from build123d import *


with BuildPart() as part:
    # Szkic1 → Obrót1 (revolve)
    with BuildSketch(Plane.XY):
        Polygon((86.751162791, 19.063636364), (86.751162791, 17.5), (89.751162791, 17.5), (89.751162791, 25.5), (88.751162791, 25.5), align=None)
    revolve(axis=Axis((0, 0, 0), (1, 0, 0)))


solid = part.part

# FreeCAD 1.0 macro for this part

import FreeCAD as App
import Part
import Sketcher

V = App.Vector
Q = App.Units.Quantity

doc = App.newDocument("Part")
params = doc.addObject("Spreadsheet::Sheet", "Params")
for row, (alias, value) in enumerate([
    ("sketch1_width", "3 mm"),
    ("sketch1_width2", "1 mm"),
    ("sketch1_height", "8 mm"),
    ("revolution_angle", "360 deg"),
], start=1):
    params.set(f"A{row}", alias)
    params.set(f"B{row}", "=" + value)
    params.setAlias(f"B{row}", alias)

body = doc.addObject("PartDesign::Body", "Body")

# Sketch on XY plane
sketch1 = body.newObject("Sketcher::SketchObject", "Sketch")
sketch1.AttachmentSupport = (doc.getObject("XY_Plane"), [""])
sketch1.MapMode = "FlatFace"
sketch1.addGeometry([
    Part.LineSegment(V(86.8, 19.1, 0), V(86.8, 17.5, 0)),  # 0
    Part.LineSegment(V(86.8, 17.5, 0), V(89.8, 17.5, 0)),  # 1
    Part.LineSegment(V(89.8, 17.5, 0), V(89.8, 25.5, 0)),  # 2
    Part.LineSegment(V(89.8, 25.5, 0), V(88.8, 25.5, 0)),  # 3
    Part.LineSegment(V(88.8, 25.5, 0), V(86.8, 19.1, 0)),  # 4
], False)
sketch1.addConstraint([
    Sketcher.Constraint("Coincident", 0, 2, 1, 1),
    Sketcher.Constraint("Coincident", 1, 2, 2, 1),
    Sketcher.Constraint("Coincident", 2, 2, 3, 1),
    Sketcher.Constraint("Coincident", 3, 2, 4, 1),
    Sketcher.Constraint("Coincident", 4, 2, 0, 1),
    Sketcher.Constraint("Vertical", 0),
    Sketcher.Constraint("Horizontal", 1),
    Sketcher.Constraint("Vertical", 2),
    Sketcher.Constraint("Horizontal", 3),
    Sketcher.Constraint("DistanceX", 1, 1, 1, 2, Q("3 mm")),
    Sketcher.Constraint("DistanceX", 3, 2, 3, 1, Q("1 mm")),
    Sketcher.Constraint("DistanceY", 2, 1, 2, 2, Q("8 mm")),
    Sketcher.Constraint("DistanceY", -1, 1, 0, 2, Q("17.5 mm")),
    Sketcher.Constraint("Distance", 4, Q("6.739939 mm")),
    Sketcher.Constraint("DistanceX", -1, 1, 0, 2, Q("86.751163 mm")),
])
sketch1.setExpression("Constraints[9]", "Params.sketch1_width")
sketch1.setExpression("Constraints[10]", "Params.sketch1_width2")
sketch1.setExpression("Constraints[11]", "Params.sketch1_height")
revolution = body.newObject("PartDesign::Revolution", "Revolution")
revolution.Profile = sketch1
revolution.ReferenceAxis = (sketch1, ["H_Axis"])
revolution.setExpression("Angle", "Params.revolution_angle")

doc.recompute()
